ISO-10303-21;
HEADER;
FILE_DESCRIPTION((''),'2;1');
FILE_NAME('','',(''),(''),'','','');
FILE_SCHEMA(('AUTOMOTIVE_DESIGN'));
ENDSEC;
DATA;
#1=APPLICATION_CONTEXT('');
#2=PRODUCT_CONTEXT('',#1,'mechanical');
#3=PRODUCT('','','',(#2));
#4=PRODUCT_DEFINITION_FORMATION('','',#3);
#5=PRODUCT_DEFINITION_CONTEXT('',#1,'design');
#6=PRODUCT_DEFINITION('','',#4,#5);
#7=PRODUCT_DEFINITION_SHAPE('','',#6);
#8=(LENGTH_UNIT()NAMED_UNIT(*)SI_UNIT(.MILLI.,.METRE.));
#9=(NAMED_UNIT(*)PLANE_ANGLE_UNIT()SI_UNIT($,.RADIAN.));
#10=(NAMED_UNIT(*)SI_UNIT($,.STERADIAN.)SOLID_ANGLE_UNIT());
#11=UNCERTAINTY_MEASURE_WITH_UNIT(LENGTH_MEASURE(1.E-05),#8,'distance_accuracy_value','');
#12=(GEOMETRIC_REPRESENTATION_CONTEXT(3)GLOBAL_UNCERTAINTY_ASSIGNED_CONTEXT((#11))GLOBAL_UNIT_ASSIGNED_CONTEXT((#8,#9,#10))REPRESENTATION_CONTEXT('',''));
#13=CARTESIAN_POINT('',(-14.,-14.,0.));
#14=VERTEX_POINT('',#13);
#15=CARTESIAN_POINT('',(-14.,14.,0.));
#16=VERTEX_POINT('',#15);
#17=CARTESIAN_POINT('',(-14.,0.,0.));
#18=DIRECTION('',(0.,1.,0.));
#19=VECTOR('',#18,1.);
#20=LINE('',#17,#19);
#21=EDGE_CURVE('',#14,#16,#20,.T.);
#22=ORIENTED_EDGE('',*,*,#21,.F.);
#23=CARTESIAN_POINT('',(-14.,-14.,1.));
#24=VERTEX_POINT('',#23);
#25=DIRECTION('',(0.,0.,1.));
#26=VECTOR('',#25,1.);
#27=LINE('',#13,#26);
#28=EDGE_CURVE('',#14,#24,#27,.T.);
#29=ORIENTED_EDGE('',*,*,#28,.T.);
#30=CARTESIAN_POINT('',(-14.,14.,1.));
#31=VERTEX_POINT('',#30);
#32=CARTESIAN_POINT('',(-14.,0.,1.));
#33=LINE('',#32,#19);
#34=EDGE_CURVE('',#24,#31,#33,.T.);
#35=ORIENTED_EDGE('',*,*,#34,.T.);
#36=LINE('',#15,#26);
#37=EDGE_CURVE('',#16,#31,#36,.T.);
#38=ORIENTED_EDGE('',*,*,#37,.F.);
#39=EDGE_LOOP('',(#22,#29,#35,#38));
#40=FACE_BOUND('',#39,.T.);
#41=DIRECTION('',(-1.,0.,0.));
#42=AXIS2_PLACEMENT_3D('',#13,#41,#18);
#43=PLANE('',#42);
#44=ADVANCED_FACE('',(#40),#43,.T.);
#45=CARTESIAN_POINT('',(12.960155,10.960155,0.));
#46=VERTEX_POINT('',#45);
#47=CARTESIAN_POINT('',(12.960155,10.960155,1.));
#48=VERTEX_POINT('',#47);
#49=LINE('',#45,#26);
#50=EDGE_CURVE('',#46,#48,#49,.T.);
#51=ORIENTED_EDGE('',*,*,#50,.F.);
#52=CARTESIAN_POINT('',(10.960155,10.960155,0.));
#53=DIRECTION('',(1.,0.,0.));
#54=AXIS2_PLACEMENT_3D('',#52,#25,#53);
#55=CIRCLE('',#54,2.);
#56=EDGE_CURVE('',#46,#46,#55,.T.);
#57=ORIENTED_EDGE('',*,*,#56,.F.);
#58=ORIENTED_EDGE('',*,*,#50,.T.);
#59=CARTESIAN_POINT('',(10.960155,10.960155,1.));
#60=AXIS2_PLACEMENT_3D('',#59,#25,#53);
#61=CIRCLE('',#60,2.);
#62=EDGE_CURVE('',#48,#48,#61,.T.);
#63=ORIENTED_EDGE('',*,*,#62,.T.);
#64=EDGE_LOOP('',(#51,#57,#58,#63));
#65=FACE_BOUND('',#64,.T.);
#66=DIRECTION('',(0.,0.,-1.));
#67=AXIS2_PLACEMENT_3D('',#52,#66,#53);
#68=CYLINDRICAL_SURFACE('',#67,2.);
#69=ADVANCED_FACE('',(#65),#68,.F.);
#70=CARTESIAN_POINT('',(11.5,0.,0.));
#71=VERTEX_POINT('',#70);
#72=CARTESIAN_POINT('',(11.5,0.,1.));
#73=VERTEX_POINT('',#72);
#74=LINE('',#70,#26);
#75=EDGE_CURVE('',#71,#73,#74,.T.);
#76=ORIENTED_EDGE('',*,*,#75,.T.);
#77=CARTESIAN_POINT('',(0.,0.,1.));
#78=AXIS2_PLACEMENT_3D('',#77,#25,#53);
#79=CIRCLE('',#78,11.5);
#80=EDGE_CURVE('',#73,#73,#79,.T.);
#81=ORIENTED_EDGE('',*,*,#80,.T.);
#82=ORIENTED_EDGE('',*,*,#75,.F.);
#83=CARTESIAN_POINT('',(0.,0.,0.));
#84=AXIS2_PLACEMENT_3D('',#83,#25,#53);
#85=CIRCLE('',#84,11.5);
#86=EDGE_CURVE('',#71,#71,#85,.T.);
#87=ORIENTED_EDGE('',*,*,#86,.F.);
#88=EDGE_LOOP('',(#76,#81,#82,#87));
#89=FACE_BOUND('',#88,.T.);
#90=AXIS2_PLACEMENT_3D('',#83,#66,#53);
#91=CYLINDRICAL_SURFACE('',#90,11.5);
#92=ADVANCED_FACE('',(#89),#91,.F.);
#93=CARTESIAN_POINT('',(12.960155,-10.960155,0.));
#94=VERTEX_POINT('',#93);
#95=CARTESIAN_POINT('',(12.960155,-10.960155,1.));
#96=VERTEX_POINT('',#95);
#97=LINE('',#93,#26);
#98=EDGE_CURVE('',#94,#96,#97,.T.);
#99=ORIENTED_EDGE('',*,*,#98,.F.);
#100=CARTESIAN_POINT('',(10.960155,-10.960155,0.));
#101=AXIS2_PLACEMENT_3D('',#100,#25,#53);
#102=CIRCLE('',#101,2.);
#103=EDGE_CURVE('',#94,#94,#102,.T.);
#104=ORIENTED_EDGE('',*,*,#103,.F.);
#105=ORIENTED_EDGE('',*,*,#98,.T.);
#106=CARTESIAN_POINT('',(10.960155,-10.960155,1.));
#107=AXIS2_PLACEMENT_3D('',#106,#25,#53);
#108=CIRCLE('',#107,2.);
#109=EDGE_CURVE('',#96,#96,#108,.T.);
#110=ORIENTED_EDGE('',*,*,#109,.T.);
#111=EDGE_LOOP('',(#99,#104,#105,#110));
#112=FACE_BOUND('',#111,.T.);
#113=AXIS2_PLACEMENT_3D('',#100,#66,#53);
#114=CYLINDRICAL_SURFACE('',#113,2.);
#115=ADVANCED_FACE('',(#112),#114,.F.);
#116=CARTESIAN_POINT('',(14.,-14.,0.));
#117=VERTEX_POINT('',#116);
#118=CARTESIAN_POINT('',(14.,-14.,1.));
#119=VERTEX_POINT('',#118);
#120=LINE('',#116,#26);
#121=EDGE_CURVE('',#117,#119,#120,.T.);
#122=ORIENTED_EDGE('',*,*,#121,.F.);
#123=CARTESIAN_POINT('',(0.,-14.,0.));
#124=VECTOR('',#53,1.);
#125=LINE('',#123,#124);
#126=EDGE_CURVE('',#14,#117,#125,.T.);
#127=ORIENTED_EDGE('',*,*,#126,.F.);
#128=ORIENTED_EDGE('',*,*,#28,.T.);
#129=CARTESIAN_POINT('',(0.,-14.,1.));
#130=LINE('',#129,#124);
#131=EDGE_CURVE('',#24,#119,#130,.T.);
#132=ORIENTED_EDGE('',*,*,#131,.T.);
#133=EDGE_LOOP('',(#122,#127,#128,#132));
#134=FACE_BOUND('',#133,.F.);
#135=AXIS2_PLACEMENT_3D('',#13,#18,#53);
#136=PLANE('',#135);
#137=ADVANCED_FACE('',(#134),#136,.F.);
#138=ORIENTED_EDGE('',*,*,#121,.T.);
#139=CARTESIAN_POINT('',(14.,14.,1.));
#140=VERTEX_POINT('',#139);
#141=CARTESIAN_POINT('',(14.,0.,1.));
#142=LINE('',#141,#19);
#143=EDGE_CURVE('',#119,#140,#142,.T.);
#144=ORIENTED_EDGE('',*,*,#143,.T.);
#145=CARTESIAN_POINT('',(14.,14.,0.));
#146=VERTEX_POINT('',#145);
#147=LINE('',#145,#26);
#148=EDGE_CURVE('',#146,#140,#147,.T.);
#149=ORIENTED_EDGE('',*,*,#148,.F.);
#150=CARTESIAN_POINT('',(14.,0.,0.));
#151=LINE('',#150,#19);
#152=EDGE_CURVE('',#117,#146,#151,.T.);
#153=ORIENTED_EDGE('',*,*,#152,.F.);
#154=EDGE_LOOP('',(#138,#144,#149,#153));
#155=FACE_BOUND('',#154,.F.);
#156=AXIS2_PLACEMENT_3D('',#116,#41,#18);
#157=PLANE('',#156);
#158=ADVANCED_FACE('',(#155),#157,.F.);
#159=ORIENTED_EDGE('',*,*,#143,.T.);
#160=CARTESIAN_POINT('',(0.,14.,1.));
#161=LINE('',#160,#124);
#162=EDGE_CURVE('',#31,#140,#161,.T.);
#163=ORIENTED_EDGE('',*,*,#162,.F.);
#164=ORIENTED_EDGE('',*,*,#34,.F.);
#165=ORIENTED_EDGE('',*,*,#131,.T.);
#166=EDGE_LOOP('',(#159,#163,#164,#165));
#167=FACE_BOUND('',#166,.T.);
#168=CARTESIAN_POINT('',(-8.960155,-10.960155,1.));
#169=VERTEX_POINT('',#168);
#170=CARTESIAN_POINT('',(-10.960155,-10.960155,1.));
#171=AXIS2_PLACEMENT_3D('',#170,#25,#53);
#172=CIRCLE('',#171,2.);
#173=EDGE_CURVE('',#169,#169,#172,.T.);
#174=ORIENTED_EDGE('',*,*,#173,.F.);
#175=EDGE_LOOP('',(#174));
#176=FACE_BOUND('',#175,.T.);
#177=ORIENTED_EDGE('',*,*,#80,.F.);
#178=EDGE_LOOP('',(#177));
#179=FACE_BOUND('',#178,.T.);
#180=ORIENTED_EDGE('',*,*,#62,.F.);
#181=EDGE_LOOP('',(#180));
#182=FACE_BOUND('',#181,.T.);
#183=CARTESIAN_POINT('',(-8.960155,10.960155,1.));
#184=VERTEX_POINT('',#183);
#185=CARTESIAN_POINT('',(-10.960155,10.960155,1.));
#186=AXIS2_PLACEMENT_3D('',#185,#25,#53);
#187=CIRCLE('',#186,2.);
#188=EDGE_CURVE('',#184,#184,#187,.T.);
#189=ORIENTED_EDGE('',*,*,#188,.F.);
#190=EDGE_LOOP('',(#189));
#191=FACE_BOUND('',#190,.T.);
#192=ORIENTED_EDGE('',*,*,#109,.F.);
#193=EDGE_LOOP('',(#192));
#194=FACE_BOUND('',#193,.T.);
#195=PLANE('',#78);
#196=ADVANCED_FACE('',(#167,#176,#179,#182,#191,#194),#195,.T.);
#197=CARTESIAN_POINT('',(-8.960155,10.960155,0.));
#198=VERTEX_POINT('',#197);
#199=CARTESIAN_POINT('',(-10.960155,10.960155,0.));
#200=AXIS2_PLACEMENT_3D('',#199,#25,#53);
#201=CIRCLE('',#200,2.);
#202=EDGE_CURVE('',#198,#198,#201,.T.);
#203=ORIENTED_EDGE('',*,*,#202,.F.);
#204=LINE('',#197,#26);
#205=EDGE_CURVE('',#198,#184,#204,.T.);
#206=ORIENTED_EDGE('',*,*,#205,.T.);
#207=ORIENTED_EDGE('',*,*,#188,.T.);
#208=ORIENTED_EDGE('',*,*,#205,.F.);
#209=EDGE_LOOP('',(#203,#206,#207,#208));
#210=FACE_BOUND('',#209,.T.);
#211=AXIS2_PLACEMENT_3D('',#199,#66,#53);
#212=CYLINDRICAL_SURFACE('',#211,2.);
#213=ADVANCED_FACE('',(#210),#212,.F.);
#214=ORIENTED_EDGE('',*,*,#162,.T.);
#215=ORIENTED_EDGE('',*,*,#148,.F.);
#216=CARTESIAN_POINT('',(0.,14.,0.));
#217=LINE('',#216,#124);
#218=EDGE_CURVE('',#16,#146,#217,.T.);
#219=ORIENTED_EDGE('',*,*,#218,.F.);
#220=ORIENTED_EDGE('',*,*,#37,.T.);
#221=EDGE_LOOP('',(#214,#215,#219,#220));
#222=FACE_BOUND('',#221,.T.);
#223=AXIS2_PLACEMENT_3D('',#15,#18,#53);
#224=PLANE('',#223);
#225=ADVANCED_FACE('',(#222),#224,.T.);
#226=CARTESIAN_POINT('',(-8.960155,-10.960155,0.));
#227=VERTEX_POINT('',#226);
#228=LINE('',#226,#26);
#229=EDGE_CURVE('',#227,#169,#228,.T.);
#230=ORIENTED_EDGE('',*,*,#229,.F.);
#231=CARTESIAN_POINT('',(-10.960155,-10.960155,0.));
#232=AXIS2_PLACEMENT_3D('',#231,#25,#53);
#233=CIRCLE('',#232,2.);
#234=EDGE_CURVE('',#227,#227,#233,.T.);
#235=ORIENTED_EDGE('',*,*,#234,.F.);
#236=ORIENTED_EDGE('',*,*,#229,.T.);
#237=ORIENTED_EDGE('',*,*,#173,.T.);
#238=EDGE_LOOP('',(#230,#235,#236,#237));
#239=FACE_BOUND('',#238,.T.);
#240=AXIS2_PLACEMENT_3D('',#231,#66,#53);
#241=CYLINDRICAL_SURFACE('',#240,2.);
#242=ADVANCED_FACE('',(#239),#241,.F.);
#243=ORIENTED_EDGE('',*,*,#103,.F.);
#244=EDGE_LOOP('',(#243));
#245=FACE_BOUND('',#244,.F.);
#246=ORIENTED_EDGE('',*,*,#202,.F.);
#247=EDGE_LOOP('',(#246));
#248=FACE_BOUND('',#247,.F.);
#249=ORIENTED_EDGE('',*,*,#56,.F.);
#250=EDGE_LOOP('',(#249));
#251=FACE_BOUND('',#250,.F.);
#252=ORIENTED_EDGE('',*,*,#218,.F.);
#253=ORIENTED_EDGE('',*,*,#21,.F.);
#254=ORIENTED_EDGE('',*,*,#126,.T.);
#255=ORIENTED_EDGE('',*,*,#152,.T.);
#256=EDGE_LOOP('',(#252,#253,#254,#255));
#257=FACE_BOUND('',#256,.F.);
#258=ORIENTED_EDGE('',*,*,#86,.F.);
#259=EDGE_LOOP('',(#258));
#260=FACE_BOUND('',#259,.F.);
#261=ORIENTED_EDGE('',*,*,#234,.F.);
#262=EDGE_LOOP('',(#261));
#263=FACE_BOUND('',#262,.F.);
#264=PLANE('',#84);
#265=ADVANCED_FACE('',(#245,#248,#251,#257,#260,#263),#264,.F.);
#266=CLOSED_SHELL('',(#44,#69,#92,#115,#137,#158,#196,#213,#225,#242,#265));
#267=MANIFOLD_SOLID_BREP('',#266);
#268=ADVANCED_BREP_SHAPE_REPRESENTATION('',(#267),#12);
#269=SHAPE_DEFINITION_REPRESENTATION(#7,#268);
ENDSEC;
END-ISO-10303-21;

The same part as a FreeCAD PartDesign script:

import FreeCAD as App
import Part
import Sketcher

doc = App.newDocument("Part")
body = doc.addObject("PartDesign::Body", "Body")

# Sketch on XY plane
sketch1 = body.newObject("Sketcher::SketchObject", "Sketch")
sketch1.AttachmentSupport = (doc.getObject("XY_Plane"), [""])
sketch1.MapMode = "FlatFace"
sketch1.addGeometry([
    Part.LineSegment(App.Vector(-14, 14, 0), App.Vector(-14, -14, 0)),  # 0
    Part.LineSegment(App.Vector(-14, -14, 0), App.Vector(14, -14, 0)),  # 1
    Part.LineSegment(App.Vector(14, -14, 0), App.Vector(14, 14, 0)),  # 2
    Part.LineSegment(App.Vector(14, 14, 0), App.Vector(-14, 14, 0)),  # 3
    Part.Circle(App.Vector(-11, -11, 0), App.Vector(0, 0, 1), 2),  # 4
    Part.Circle(App.Vector(11, -11, 0), App.Vector(0, 0, 1), 2),  # 5
    Part.Circle(App.Vector(-11, 11, 0), App.Vector(0, 0, 1), 2),  # 6
    Part.Circle(App.Vector(0, 0, 0), App.Vector(0, 0, 1), 11.5),  # 7
    Part.Circle(App.Vector(11, 11, 0), App.Vector(0, 0, 1), 2),  # 8
], False)
sketch1.addConstraint([
    Sketcher.Constraint("Coincident", 0, 2, 1, 1),
    Sketcher.Constraint("Coincident", 1, 2, 2, 1),
    Sketcher.Constraint("Coincident", 2, 2, 3, 1),
    Sketcher.Constraint("Coincident", 3, 2, 0, 1),
    Sketcher.Constraint("Vertical", 0),
    Sketcher.Constraint("Horizontal", 1),
    Sketcher.Constraint("Vertical", 2),
    Sketcher.Constraint("Horizontal", 3),
    Sketcher.Constraint("Coincident", 7, 3, -1, 1),
    Sketcher.Constraint("Equal", 4, 5),
    Sketcher.Constraint("Equal", 5, 6),
    Sketcher.Constraint("Equal", 6, 8),
    Sketcher.Constraint("Symmetric", 5, 3, 6, 3, -1, 1),
    Sketcher.Constraint("Symmetric", 4, 3, 8, 3, -1, 1),
    Sketcher.Constraint("Symmetric", 0, 2, 2, 2, -1, 1),
    Sketcher.Constraint("Symmetric", 4, 3, 5, 3, -2),
    Sketcher.Constraint("Equal", 3, 0),
    Sketcher.Constraint("Diameter", 4, 4.0),
    Sketcher.Constraint("Diameter", 7, 23.0),
    Sketcher.Constraint("DistanceX", 1, 1, 1, 2, 28.0),
    Sketcher.Constraint("DistanceX", 4, 3, 5, 3, 21.92031),
    Sketcher.Constraint("DistanceY", 4, 3, 6, 3, 21.92031),
])
pad1 = body.newObject("PartDesign::Pad", "Pad")
pad1.Profile = sketch1
pad1.Length = 1

doc.recompute()
